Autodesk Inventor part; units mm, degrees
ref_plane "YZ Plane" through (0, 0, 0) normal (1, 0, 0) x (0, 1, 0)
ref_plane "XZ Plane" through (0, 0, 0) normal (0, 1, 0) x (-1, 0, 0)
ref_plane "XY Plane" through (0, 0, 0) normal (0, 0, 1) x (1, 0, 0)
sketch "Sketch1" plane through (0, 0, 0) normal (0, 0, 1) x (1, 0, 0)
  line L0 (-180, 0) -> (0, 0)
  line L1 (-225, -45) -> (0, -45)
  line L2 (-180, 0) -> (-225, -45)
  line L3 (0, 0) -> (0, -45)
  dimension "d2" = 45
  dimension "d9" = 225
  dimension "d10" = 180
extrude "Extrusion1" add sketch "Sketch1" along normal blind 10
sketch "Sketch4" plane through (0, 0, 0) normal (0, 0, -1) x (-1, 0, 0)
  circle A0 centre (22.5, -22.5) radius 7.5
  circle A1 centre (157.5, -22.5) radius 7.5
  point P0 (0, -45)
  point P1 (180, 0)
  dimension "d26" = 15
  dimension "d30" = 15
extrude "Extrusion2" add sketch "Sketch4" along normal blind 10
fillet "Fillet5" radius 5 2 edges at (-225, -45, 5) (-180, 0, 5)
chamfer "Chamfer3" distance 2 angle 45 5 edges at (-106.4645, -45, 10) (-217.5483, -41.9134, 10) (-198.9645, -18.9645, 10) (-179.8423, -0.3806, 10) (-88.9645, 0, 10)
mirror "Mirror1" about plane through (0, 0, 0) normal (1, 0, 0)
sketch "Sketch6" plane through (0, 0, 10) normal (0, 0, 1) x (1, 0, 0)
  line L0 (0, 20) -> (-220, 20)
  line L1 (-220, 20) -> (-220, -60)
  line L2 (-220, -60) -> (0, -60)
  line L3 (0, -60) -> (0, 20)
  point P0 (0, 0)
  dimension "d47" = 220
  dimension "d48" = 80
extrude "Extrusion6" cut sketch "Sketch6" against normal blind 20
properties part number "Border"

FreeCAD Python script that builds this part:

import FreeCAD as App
import Part
import Sketcher
Q = App.Units.Quantity


def edges_at(feature, points):
    """Names of the edges that pass closest to the given points."""
    edges = feature.Shape.Edges
    near = lambda p: min(range(len(edges)), key=lambda i: edges[i].distToShape(Part.Vertex(*p))[0])
    return sorted({f"Edge{near(p) + 1}" for p in points})


def add_polygon(sketch, points):
    """Adds a closed chain of lines whose ends are joined by coincident constraints."""
    first, n = sketch.GeometryCount, len(points)
    for a, b in zip(points, points[1:] + points[:1]):
        sketch.addGeometry(Part.LineSegment(App.Vector(*a, 0), App.Vector(*b, 0)), False)
    for i in range(n):
        sketch.addConstraint(Sketcher.Constraint("Coincident", first + i, 2, first + (i + 1) % n, 1))

doc = App.newDocument("Part")
params = doc.addObject("Spreadsheet::Sheet", "Params")
for row, (alias, value) in enumerate([
    ("sketch1_width", "180 mm"),
    ("sketch1_width2", "225 mm"),
    ("sketch1_height", "45 mm"),
    ("pad1_length", "10 mm"),
    ("sketch2_diameter", "15 mm"),
    ("pad2_length", "10 mm"),
    ("fillet_radius", "5 mm"),
    ("chamfer_size", "2 mm"),
    ("sketch3_width", "220 mm"),
    ("sketch3_height", "80 mm"),
    ("pocket1_length", "20 mm"),
], start=1):
    params.set(f"A{row}", alias)
    params.set(f"B{row}", "=" + value)
    params.setAlias(f"B{row}", alias)

body = doc.addObject("PartDesign::Body", "Body")

# Sketch on XY plane
sketch1 = doc.addObject("Sketcher::SketchObject", "Sketch")
body.addObject(sketch1)
sketch1.AttachmentSupport = (doc.XY_Plane, [""])
sketch1.MapMode = "FlatFace"
add_polygon(sketch1, [(0, 0), (-180, 0), (-225, -45), (0, -45)])  # lines 0-3
sketch1.addConstraint([
    Sketcher.Constraint("Horizontal", 0),
    Sketcher.Constraint("Horizontal", 2),
    Sketcher.Constraint("Vertical", 3),
    Sketcher.Constraint("Coincident", 3, 2, -1, 1),
    Sketcher.Constraint("DistanceX", 0, 2, 0, 1, Q("180 mm")),
    Sketcher.Constraint("DistanceX", 2, 1, 2, 2, Q("225 mm")),
    Sketcher.Constraint("DistanceY", 3, 1, 3, 2, Q("45 mm")),
])
sketch1.setExpression("Constraints[8]", "Params.sketch1_width")
sketch1.setExpression("Constraints[9]", "Params.sketch1_width2")
sketch1.setExpression("Constraints[10]", "Params.sketch1_height")
pad1 = doc.addObject("PartDesign::Pad", "Pad")
body.addObject(pad1)
pad1.Profile = sketch1
pad1.setExpression("Length", "Params.pad1_length")

# Sketch on XY plane
sketch2 = doc.addObject("Sketcher::SketchObject", "Sketch001")
body.addObject(sketch2)
sketch2.AttachmentSupport = (doc.XY_Plane, [""])
sketch2.MapMode = "FlatFace"
sketch2.addGeometry([
    Part.Circle(App.Vector(-22, -22, 0), App.Vector(0, 0, 1), 8),
    Part.Circle(App.Vector(-158, -22, 0), App.Vector(0, 0, 1), 8),
], False)
sketch2.addConstraint([
    Sketcher.Constraint("Equal", 0, 1),
    Sketcher.Constraint("Horizontal", 0, 3, 1, 3),
    Sketcher.Constraint("Diameter", 0, Q("15 mm")),
    Sketcher.Constraint("DistanceX", 1, 3, 0, 3, Q("135 mm")),
    Sketcher.Constraint("DistanceX", 0, 3, -1, 1, Q("22.5 mm")),
    Sketcher.Constraint("DistanceY", 0, 3, -1, 1, Q("22.5 mm")),
])
sketch2.setExpression("Constraints[2]", "Params.sketch2_diameter")
pad2 = doc.addObject("PartDesign::Pad", "Pad001")
body.addObject(pad2)
pad2.Profile = sketch2
pad2.setExpression("Length", "Params.pad2_length")
pad2.Reversed = True
doc.recompute()

fillet = doc.addObject("PartDesign::Fillet", "Fillet")
body.addObject(fillet)
fillet.Base = (pad2, edges_at(pad2, [(-225, -45, 5), (-180, 0, 5)]))
fillet.setExpression("Radius", "Params.fillet_radius")
doc.recompute()

chamfer = doc.addObject("PartDesign::Chamfer", "Chamfer")
body.addObject(chamfer)
chamfer.Base = (fillet, edges_at(fillet, [
    (-106.465, -45, 10),
    (-217.548, -41.913, 10),
    (-198.964, -18.965, 10),
    (-179.842, -0.381, 10),
    (-88.965, 0, 10),
]))
chamfer.setExpression("Size", "Params.chamfer_size")
doc.recompute()

mirrored = doc.addObject("PartDesign::Mirrored", "Mirrored")
body.addObject(mirrored)
mirrored.TransformMode = "Transform body"
mirrored.MirrorPlane = (doc.YZ_Plane, [""])
body.Tip = mirrored

# Sketch on XY plane
sketch3 = doc.addObject("Sketcher::SketchObject", "Sketch002")
body.addObject(sketch3)
sketch3.AttachmentSupport = (doc.XY_Plane, [""])
sketch3.MapMode = "FlatFace"
sketch3.AttachmentOffset = App.Placement(App.Vector(0, 0, 10), App.Rotation())
add_polygon(sketch3, [(0, -60), (0, 20), (-220, 20), (-220, -60)])  # lines 0-3
sketch3.addConstraint([
    Sketcher.Constraint("Vertical", 0),
    Sketcher.Constraint("Horizontal", 1),
    Sketcher.Constraint("Vertical", 2),
    Sketcher.Constraint("Horizontal", 3),
    Sketcher.Constraint("PointOnObject", 0, 2, -2),
    Sketcher.Constraint("DistanceX", 1, 2, 1, 1, Q("220 mm")),
    Sketcher.Constraint("DistanceY", 0, 1, 0, 2, Q("80 mm")),
    Sketcher.Constraint("DistanceY", -1, 1, 0, 2, Q("20 mm")),
])
sketch3.setExpression("Constraints[9]", "Params.sketch3_width")
sketch3.setExpression("Constraints[10]", "Params.sketch3_height")
pocket1 = doc.addObject("PartDesign::Pocket", "Pocket")
body.addObject(pocket1)
pocket1.Profile = sketch3
pocket1.setExpression("Length", "Params.pocket1_length")

doc.recompute()
